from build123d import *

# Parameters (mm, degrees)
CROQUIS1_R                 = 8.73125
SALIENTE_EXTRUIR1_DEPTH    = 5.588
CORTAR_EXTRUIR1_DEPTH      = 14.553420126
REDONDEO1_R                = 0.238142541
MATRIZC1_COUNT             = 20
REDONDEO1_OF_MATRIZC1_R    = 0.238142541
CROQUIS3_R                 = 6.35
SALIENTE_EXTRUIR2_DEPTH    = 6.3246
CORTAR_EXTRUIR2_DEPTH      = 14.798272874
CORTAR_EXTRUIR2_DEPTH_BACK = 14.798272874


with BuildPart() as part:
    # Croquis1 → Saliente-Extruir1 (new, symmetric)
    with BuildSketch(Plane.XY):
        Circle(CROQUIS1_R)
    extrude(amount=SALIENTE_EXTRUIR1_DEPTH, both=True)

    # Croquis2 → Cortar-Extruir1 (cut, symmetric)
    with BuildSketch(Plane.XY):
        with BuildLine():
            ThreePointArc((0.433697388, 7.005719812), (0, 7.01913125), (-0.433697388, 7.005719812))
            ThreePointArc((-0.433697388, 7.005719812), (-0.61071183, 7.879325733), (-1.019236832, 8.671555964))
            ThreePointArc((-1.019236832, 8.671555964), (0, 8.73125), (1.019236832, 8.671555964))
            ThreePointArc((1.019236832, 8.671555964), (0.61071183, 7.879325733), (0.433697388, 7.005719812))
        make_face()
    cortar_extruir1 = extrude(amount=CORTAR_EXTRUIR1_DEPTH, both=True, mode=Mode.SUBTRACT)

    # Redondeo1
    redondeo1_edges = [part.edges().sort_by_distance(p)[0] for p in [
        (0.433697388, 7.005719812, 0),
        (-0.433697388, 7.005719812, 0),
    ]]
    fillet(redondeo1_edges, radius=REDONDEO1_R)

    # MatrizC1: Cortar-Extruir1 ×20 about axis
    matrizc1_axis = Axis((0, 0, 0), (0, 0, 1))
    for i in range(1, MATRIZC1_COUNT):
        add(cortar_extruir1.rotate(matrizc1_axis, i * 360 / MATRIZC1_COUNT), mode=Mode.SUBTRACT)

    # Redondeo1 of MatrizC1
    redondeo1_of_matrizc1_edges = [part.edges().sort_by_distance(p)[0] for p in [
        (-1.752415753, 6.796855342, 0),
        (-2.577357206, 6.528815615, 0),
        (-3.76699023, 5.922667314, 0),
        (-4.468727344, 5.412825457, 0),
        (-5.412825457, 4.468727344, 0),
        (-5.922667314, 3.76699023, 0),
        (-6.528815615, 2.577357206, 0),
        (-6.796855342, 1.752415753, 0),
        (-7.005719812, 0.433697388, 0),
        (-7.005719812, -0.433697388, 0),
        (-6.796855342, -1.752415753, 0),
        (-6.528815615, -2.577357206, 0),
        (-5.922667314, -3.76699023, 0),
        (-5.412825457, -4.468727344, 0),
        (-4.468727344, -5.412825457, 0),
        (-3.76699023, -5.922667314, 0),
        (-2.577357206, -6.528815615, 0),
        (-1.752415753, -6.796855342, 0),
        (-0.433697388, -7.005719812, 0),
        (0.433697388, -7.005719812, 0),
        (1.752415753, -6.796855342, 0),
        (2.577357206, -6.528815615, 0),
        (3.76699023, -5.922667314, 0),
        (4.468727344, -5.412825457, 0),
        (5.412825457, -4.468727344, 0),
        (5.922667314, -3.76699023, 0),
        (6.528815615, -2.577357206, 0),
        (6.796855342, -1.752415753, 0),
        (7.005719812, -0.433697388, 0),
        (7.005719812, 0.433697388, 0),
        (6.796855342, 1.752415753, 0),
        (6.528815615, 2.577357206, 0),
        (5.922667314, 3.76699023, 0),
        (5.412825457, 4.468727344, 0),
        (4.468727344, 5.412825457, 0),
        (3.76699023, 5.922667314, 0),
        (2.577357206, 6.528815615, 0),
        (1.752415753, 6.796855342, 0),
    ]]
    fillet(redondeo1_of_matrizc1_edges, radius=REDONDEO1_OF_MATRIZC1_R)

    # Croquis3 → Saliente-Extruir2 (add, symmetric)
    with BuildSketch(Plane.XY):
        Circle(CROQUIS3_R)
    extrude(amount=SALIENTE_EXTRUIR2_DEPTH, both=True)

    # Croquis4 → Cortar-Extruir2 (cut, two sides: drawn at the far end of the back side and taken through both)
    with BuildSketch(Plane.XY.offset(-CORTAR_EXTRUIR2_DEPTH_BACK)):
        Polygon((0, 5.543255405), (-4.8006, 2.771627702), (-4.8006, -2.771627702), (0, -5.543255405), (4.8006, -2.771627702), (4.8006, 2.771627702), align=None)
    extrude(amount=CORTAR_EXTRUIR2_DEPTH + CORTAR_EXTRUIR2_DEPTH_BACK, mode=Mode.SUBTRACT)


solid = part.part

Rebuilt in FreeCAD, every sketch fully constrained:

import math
import FreeCAD as App
import Part
import Sketcher

V = App.Vector
Q = App.Units.Quantity


def edges_at(feature, points):
    """Names of the edges that pass closest to the given points."""
    edges = feature.Shape.Edges
    near = lambda p: min(range(len(edges)), key=lambda i: edges[i].distToShape(Part.Vertex(*p))[0])
    return sorted({f"Edge{near(p) + 1}" for p in points})


def add_polygon(sketch, points):
    """Adds a closed chain of lines whose ends are joined by coincident constraints."""
    first, n = sketch.GeometryCount, len(points)
    for a, b in zip(points, points[1:] + points[:1]):
        sketch.addGeometry(Part.LineSegment(App.Vector(*a, 0), App.Vector(*b, 0)), False)
    for i in range(n):
        sketch.addConstraint(Sketcher.Constraint("Coincident", first + i, 2, first + (i + 1) % n, 1))

doc = App.newDocument("Part")
body = doc.addObject("PartDesign::Body", "Body")

sketch1 = body.newObject("Sketcher::SketchObject", "Sketch")
sketch1.AttachmentSupport = (doc.getObject("XY_Plane"), [""])
sketch1.MapMode = "FlatFace"
sketch1.addGeometry(Part.Circle(V(0, 0, 0), V(0, 0, 1), 8.73125), False)
sketch1.addConstraint([
    Sketcher.Constraint("Coincident", 0, 3, -1, 1),
    Sketcher.Constraint("Diameter", 0, Q("0.6875 in")),
])
pad1 = body.newObject("PartDesign::Pad", "Pad")
pad1.Profile = sketch1
pad1.Length = Q("0.44 in")
pad1.Midplane = True

sketch2 = body.newObject("Sketcher::SketchObject", "Sketch001")
sketch2.AttachmentSupport = (doc.getObject("XY_Plane"), [""])
sketch2.MapMode = "FlatFace"
sketch2.addGeometry([
    Part.ArcOfCircle(Part.Circle(V(0, 0, 0), V(0, 0, 1), 7.019131), math.radians(86.457558), math.radians(93.542442)),
    Part.ArcOfCircle(Part.Circle(V(3.665224, 6.805668, 0), V(0, 0, 1), 3.237713), math.radians(144.809413), math.radians(176.457558)),
    Part.ArcOfCircle(Part.Circle(V(0, 0, 0), V(0, 0, 1), 8.73125), math.radians(83.29633), math.radians(96.70367)),
    Part.ArcOfCircle(Part.Circle(V(-3.665224, 6.805668, 0), V(0, 0, 1), 3.237713), math.radians(3.542442), math.radians(35.190587)),
], False)
sketch2.addConstraint([
    Sketcher.Constraint("Coincident", 0, 1, 1, 2),
    Sketcher.Constraint("Coincident", 1, 1, 2, 1),
    Sketcher.Constraint("Coincident", 2, 2, 3, 2),
    Sketcher.Constraint("Coincident", 3, 1, 0, 2),
    Sketcher.Constraint("Coincident", 0, 3, -1, 1),
    Sketcher.Constraint("Coincident", 2, 3, -1, 1),
    Sketcher.Constraint("Equal", 1, 3),
    Sketcher.Constraint("Symmetric", 1, 3, 3, 3, -2),
    Sketcher.Constraint("Radius", 2, Q("0.34375 in")),
    Sketcher.Constraint("Radius", 0, 7.019131),
    Sketcher.Constraint("DistanceX", -1, 1, 1, 3, Q("0.1443002 in")),
    Sketcher.Constraint("DistanceY", -1, 1, 1, 1, Q("0.3413998 in")),
    Sketcher.Constraint("Radius", 1, 3.237713),
])
pocket1 = body.newObject("PartDesign::Pocket", "Pocket")
pocket1.Profile = sketch2
pocket1.Length = 29.10684
pocket1.Midplane = True
doc.recompute()

fillet = body.newObject("PartDesign::Fillet", "Fillet")
fillet.Base = (pocket1, edges_at(pocket1, [(0.434, 7.006, 0), (-0.434, 7.006, 0)]))
fillet.Radius = 0.238143
doc.recompute()

polarpattern = body.newObject("PartDesign::PolarPattern", "PolarPattern")
polarpattern.Originals = [pocket1]
polarpattern.Axis = (doc.getObject("Z_Axis"), [""])
polarpattern.Angle = 360
polarpattern.Occurrences = 20
body.Tip = polarpattern
doc.recompute()

fillet2 = body.newObject("PartDesign::Fillet", "Fillet001")
fillet2.Base = (polarpattern, edges_at(polarpattern, [
    (-1.752, 6.797, 0),
    (-2.577, 6.529, 0),
    (-3.767, 5.923, 0),
    (-4.469, 5.413, 0),
    (-5.413, 4.469, 0),
    (-5.923, 3.767, 0),
    (-6.529, 2.577, 0),
    (-6.797, 1.752, 0),
    (-7.006, 0.434, 0),
    (-7.006, -0.434, 0),
    (-6.797, -1.752, 0),
    (-6.529, -2.577, 0),
    (-5.923, -3.767, 0),
    (-5.413, -4.469, 0),
    (-4.469, -5.413, 0),
    (-3.767, -5.923, 0),
    (-2.577, -6.529, 0),
    (-1.752, -6.797, 0),
    (-0.434, -7.006, 0),
    (0.434, -7.006, 0),
    (1.752, -6.797, 0),
    (2.577, -6.529, 0),
    (3.767, -5.923, 0),
    (4.469, -5.413, 0),
    (5.413, -4.469, 0),
    (5.923, -3.767, 0),
    (6.529, -2.577, 0),
    (6.797, -1.752, 0),
    (7.006, -0.434, 0),
    (7.006, 0.434, 0),
    (6.797, 1.752, 0),
    (6.529, 2.577, 0),
    (5.923, 3.767, 0),
    (5.413, 4.469, 0),
    (4.469, 5.413, 0),
    (3.767, 5.923, 0),
    (2.577, 6.529, 0),
    (1.752, 6.797, 0),
]))
fillet2.Radius = 0.238143

sketch3 = body.newObject("Sketcher::SketchObject", "Sketch002")
sketch3.AttachmentSupport = (doc.getObject("XY_Plane"), [""])
sketch3.MapMode = "FlatFace"
sketch3.addGeometry(Part.Circle(V(0, 0, 0), V(0, 0, 1), 6.35), False)
sketch3.addConstraint([
    Sketcher.Constraint("Coincident", 0, 3, -1, 1),
    Sketcher.Constraint("Diameter", 0, Q("0.5 in")),
])
pad2 = body.newObject("PartDesign::Pad", "Pad001")
pad2.Profile = sketch3
pad2.Length = Q("0.498 in")
pad2.Midplane = True

sketch4 = body.newObject("Sketcher::SketchObject", "Sketch003")
sketch4.AttachmentSupport = (doc.getObject("XY_Plane"), [""])
sketch4.MapMode = "FlatFace"
add_polygon(sketch4, [(0, 5.543255), (-4.8006, 2.771628), (-4.8006, -2.771628), (0, -5.543255), (4.8006, -2.771628), (4.8006, 2.771628)])
sketch4.addConstraint([
    Sketcher.Constraint("Vertical", 1),
    Sketcher.Constraint("Vertical", 4),
    Sketcher.Constraint("Symmetric", 0, 2, 3, 2, -1, 1),
    Sketcher.Constraint("Symmetric", 2, 2, 5, 2, -1, 1),
    Sketcher.Constraint("PointOnObject", 2, 2, -2),
    Sketcher.Constraint("Parallel", 2, 5),
    Sketcher.Constraint("Horizontal", 1, 2, 3, 2),
    Sketcher.Constraint("Angle", 0, Q("-150 deg")),
    Sketcher.Constraint("DistanceX", 0, 2, -1, 1, Q("0.189 in")),
    Sketcher.Constraint("DistanceY", 1, 2, 1, 1, 5.543255),
])
pocket2 = body.newObject("PartDesign::Pocket", "Pocket001")
pocket2.Profile = sketch4
pocket2.Type = "ThroughAll"
pocket2.Midplane = True

doc.recompute()
